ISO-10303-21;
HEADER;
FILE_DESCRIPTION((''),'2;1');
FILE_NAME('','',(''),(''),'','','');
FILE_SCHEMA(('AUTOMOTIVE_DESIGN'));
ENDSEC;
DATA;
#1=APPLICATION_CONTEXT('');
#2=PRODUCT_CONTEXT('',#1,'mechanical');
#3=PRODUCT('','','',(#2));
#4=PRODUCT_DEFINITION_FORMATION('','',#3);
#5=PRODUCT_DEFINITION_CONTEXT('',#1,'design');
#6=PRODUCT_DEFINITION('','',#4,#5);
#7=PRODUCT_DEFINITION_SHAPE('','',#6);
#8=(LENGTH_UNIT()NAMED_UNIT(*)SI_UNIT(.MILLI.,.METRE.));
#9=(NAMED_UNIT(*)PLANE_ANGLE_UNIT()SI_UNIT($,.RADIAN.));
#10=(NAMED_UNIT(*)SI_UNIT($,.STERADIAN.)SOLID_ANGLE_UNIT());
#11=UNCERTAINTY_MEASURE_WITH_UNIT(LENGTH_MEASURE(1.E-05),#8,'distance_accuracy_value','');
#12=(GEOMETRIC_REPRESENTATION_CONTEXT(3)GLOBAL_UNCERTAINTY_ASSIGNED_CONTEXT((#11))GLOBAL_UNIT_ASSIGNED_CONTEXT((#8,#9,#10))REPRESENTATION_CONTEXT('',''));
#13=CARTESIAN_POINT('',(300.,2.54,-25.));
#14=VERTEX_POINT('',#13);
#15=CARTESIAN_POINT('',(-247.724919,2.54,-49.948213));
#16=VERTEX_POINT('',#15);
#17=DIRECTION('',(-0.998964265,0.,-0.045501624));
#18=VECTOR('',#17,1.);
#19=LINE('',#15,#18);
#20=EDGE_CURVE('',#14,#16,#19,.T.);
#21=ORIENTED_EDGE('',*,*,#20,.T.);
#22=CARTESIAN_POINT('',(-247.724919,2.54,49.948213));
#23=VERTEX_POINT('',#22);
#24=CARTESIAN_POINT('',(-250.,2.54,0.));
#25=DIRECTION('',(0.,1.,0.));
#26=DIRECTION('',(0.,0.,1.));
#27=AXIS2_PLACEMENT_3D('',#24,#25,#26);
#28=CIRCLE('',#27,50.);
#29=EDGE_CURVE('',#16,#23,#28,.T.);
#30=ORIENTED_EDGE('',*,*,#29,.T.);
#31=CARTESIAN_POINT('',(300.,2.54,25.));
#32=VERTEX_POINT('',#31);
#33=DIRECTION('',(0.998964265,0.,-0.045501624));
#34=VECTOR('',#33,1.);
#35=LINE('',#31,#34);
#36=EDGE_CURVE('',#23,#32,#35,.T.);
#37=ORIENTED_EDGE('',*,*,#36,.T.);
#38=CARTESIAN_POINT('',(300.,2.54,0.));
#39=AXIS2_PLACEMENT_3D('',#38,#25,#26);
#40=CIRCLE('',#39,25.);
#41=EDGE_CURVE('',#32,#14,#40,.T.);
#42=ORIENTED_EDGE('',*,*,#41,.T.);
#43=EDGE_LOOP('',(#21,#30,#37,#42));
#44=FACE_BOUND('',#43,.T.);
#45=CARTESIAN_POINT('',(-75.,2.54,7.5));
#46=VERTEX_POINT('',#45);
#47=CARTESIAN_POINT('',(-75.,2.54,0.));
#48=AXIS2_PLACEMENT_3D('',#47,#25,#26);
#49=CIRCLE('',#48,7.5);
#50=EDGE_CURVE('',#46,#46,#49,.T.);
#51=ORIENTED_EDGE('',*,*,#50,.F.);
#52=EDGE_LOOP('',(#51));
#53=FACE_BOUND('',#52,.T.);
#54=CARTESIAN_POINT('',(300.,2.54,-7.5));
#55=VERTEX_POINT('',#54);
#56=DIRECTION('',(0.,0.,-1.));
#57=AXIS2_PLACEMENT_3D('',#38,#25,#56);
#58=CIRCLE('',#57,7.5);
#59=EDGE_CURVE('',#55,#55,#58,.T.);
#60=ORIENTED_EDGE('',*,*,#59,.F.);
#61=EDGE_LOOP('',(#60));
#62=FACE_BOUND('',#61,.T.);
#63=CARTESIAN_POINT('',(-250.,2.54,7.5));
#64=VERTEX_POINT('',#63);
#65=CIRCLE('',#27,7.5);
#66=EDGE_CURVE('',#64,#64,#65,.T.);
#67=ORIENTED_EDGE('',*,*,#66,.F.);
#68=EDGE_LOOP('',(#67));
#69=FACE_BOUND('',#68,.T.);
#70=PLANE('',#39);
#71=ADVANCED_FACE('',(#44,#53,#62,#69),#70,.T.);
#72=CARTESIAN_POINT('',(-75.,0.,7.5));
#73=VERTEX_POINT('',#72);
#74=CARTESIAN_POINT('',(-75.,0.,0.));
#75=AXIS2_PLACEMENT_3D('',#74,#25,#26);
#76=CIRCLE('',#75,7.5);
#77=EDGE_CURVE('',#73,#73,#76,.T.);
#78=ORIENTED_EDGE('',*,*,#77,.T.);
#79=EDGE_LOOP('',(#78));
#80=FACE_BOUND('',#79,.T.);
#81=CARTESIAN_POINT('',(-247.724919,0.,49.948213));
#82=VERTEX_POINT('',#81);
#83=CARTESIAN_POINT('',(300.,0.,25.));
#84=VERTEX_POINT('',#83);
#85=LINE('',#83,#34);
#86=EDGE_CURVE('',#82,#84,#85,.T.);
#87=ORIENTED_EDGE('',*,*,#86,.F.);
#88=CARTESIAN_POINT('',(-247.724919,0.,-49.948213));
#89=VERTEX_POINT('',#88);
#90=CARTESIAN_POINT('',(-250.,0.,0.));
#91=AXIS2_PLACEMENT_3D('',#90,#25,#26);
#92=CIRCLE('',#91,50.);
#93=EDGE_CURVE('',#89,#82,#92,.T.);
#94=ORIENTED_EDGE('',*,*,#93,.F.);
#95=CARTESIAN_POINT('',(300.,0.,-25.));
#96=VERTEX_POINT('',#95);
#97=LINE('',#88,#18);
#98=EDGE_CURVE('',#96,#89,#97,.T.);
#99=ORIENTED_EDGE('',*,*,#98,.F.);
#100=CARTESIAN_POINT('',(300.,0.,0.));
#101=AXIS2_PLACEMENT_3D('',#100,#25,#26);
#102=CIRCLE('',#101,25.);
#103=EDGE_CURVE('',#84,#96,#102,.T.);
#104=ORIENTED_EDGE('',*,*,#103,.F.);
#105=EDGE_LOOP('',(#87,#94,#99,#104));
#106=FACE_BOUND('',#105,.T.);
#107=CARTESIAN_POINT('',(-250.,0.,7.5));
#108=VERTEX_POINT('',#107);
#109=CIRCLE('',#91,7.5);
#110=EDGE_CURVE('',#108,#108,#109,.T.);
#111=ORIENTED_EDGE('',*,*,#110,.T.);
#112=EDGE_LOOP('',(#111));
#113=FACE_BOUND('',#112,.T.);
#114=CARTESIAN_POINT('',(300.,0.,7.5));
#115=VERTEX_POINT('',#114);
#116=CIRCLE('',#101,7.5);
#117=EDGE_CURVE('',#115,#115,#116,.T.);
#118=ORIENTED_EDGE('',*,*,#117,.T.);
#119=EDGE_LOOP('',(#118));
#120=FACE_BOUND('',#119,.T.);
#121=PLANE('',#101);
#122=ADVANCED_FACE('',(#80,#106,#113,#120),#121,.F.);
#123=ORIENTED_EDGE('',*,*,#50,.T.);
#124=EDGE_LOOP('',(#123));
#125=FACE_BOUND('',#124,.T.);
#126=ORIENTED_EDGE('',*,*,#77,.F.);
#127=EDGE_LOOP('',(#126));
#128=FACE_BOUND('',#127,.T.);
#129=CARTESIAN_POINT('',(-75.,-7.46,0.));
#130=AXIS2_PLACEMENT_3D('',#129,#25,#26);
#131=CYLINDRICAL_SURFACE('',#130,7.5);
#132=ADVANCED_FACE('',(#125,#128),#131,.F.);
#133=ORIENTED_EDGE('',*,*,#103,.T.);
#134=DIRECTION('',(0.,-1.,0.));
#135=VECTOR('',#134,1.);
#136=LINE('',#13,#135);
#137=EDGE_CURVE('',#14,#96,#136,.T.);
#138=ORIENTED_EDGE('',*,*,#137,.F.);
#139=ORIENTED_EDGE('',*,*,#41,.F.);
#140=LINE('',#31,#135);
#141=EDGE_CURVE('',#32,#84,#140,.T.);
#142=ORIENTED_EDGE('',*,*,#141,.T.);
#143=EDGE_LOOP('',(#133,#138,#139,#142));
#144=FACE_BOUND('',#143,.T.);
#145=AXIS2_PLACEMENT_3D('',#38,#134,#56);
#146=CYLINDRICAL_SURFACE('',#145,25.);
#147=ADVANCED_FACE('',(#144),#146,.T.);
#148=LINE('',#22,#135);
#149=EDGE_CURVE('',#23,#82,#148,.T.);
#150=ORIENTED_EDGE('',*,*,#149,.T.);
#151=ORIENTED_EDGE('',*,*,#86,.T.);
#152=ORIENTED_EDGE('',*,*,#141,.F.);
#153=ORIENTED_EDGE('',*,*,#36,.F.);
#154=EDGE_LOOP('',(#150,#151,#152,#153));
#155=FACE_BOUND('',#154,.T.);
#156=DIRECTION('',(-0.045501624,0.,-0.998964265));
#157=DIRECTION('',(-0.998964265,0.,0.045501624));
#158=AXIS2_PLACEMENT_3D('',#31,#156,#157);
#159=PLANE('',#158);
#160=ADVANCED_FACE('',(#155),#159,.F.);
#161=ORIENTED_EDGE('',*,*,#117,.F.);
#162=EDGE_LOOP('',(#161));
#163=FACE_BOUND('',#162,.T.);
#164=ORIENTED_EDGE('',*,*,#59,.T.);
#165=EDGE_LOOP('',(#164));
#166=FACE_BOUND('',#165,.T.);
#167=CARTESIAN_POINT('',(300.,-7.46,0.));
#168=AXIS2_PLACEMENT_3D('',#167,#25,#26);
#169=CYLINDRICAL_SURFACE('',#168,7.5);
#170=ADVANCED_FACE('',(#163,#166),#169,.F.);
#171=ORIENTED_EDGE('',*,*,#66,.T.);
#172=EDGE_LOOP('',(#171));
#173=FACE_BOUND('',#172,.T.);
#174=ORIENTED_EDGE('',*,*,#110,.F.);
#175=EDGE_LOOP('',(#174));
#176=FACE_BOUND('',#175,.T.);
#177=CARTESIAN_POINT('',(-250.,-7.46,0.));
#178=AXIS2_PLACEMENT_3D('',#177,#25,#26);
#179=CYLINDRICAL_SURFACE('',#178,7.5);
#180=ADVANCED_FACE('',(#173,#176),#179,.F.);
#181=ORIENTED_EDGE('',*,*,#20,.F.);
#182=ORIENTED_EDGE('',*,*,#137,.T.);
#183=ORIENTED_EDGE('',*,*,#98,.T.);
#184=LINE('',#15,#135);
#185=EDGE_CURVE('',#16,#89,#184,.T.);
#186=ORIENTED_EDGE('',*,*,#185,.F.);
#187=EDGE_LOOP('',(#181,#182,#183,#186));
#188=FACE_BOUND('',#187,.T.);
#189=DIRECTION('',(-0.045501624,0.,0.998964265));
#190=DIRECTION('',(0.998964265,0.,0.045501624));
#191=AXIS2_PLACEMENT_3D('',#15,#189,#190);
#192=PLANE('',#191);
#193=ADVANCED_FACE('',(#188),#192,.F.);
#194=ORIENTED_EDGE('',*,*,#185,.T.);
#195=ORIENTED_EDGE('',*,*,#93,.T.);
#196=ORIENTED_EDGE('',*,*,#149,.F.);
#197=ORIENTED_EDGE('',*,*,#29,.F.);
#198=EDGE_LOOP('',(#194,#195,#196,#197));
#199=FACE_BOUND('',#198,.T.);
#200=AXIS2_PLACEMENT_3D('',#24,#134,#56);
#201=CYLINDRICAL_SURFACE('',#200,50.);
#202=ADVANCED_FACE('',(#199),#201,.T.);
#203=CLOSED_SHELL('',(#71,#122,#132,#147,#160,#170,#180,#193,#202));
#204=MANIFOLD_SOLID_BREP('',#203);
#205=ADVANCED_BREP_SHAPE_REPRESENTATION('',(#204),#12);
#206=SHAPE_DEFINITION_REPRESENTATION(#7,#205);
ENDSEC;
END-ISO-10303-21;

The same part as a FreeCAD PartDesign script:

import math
import FreeCAD as App
import Part
import Sketcher

doc = App.newDocument("Part")
body = doc.addObject("PartDesign::Body", "Body")

# Sketch on XZ plane
sketch1 = body.newObject("Sketcher::SketchObject", "Sketch")
sketch1.AttachmentSupport = (doc.getObject("XZ_Plane"), [""])
sketch1.MapMode = "FlatFace"
sketch1.addGeometry([
    Part.LineSegment(App.Vector(300, -25, 0), App.Vector(-248, -50, 0)),
    Part.ArcOfCircle(Part.Circle(App.Vector(-250, 0, 0), App.Vector(0, 0, 1), 50), math.radians(87), math.radians(273)),
    Part.LineSegment(App.Vector(-248, 50, 0), App.Vector(300, 25, 0)),
    Part.ArcOfCircle(Part.Circle(App.Vector(300, 0, 0), App.Vector(0, 0, 1), 25), math.radians(-90), math.radians(90)),
], False)
sketch1.addConstraint([
    Sketcher.Constraint("Tangent", 0, 2, 1, 2),
    Sketcher.Constraint("Tangent", 1, 1, 2, 1),
    Sketcher.Constraint("Coincident", 2, 2, 3, 2),
    Sketcher.Constraint("Coincident", 3, 1, 0, 1),
    Sketcher.Constraint("Symmetric", 0, 2, 1, 1, -1),
    Sketcher.Constraint("PointOnObject", 3, 3, -1),
    Sketcher.Constraint("Vertical", 3, 3, 2, 2),
    Sketcher.Constraint("Radius", 1, 50.0),
    Sketcher.Constraint("Radius", 3, 25.0),
    Sketcher.Constraint("DistanceX", 1, 3, -1, 1, 250.0),
    Sketcher.Constraint("DistanceX", -1, 1, 3, 3, 300.0),
])
pad1 = body.newObject("PartDesign::Pad", "Pad")
pad1.Profile = sketch1
pad1.Length = 2.54
pad1.Reversed = True

# Sketch on XZ plane
sketch2 = body.newObject("Sketcher::SketchObject", "Sketch001")
sketch2.AttachmentSupport = (doc.getObject("XZ_Plane"), [""])
sketch2.MapMode = "FlatFace"
sketch2.AttachmentOffset = App.Placement(App.Vector(0, 0, -2.54), App.Rotation())
sketch2.addGeometry([
    Part.Circle(App.Vector(-75, 0, 0), App.Vector(0, 0, 1), 8),
    Part.Circle(App.Vector(300, 0, 0), App.Vector(0, 0, 1), 8),
    Part.Circle(App.Vector(-250, 0, 0), App.Vector(0, 0, 1), 8),
], False)
sketch2.addConstraint([
    Sketcher.Constraint("Equal", 0, 1),
    Sketcher.Constraint("Equal", 1, 2),
    Sketcher.Constraint("PointOnObject", 0, 3, -1),
    Sketcher.Constraint("PointOnObject", 1, 3, -1),
    Sketcher.Constraint("PointOnObject", 2, 3, -1),
    Sketcher.Constraint("Diameter", 0, 15.0),
    Sketcher.Constraint("DistanceX", 0, 3, -1, 1, 75.0),
    Sketcher.Constraint("DistanceX", -1, 1, 1, 3, 300.0),
    Sketcher.Constraint("DistanceX", 2, 3, -1, 1, 250.0),
])
pocket1 = body.newObject("PartDesign::Pocket", "Pocket")
pocket1.Profile = sketch2
pocket1.Length = 10
pocket1.Reversed = True

doc.recompute()
